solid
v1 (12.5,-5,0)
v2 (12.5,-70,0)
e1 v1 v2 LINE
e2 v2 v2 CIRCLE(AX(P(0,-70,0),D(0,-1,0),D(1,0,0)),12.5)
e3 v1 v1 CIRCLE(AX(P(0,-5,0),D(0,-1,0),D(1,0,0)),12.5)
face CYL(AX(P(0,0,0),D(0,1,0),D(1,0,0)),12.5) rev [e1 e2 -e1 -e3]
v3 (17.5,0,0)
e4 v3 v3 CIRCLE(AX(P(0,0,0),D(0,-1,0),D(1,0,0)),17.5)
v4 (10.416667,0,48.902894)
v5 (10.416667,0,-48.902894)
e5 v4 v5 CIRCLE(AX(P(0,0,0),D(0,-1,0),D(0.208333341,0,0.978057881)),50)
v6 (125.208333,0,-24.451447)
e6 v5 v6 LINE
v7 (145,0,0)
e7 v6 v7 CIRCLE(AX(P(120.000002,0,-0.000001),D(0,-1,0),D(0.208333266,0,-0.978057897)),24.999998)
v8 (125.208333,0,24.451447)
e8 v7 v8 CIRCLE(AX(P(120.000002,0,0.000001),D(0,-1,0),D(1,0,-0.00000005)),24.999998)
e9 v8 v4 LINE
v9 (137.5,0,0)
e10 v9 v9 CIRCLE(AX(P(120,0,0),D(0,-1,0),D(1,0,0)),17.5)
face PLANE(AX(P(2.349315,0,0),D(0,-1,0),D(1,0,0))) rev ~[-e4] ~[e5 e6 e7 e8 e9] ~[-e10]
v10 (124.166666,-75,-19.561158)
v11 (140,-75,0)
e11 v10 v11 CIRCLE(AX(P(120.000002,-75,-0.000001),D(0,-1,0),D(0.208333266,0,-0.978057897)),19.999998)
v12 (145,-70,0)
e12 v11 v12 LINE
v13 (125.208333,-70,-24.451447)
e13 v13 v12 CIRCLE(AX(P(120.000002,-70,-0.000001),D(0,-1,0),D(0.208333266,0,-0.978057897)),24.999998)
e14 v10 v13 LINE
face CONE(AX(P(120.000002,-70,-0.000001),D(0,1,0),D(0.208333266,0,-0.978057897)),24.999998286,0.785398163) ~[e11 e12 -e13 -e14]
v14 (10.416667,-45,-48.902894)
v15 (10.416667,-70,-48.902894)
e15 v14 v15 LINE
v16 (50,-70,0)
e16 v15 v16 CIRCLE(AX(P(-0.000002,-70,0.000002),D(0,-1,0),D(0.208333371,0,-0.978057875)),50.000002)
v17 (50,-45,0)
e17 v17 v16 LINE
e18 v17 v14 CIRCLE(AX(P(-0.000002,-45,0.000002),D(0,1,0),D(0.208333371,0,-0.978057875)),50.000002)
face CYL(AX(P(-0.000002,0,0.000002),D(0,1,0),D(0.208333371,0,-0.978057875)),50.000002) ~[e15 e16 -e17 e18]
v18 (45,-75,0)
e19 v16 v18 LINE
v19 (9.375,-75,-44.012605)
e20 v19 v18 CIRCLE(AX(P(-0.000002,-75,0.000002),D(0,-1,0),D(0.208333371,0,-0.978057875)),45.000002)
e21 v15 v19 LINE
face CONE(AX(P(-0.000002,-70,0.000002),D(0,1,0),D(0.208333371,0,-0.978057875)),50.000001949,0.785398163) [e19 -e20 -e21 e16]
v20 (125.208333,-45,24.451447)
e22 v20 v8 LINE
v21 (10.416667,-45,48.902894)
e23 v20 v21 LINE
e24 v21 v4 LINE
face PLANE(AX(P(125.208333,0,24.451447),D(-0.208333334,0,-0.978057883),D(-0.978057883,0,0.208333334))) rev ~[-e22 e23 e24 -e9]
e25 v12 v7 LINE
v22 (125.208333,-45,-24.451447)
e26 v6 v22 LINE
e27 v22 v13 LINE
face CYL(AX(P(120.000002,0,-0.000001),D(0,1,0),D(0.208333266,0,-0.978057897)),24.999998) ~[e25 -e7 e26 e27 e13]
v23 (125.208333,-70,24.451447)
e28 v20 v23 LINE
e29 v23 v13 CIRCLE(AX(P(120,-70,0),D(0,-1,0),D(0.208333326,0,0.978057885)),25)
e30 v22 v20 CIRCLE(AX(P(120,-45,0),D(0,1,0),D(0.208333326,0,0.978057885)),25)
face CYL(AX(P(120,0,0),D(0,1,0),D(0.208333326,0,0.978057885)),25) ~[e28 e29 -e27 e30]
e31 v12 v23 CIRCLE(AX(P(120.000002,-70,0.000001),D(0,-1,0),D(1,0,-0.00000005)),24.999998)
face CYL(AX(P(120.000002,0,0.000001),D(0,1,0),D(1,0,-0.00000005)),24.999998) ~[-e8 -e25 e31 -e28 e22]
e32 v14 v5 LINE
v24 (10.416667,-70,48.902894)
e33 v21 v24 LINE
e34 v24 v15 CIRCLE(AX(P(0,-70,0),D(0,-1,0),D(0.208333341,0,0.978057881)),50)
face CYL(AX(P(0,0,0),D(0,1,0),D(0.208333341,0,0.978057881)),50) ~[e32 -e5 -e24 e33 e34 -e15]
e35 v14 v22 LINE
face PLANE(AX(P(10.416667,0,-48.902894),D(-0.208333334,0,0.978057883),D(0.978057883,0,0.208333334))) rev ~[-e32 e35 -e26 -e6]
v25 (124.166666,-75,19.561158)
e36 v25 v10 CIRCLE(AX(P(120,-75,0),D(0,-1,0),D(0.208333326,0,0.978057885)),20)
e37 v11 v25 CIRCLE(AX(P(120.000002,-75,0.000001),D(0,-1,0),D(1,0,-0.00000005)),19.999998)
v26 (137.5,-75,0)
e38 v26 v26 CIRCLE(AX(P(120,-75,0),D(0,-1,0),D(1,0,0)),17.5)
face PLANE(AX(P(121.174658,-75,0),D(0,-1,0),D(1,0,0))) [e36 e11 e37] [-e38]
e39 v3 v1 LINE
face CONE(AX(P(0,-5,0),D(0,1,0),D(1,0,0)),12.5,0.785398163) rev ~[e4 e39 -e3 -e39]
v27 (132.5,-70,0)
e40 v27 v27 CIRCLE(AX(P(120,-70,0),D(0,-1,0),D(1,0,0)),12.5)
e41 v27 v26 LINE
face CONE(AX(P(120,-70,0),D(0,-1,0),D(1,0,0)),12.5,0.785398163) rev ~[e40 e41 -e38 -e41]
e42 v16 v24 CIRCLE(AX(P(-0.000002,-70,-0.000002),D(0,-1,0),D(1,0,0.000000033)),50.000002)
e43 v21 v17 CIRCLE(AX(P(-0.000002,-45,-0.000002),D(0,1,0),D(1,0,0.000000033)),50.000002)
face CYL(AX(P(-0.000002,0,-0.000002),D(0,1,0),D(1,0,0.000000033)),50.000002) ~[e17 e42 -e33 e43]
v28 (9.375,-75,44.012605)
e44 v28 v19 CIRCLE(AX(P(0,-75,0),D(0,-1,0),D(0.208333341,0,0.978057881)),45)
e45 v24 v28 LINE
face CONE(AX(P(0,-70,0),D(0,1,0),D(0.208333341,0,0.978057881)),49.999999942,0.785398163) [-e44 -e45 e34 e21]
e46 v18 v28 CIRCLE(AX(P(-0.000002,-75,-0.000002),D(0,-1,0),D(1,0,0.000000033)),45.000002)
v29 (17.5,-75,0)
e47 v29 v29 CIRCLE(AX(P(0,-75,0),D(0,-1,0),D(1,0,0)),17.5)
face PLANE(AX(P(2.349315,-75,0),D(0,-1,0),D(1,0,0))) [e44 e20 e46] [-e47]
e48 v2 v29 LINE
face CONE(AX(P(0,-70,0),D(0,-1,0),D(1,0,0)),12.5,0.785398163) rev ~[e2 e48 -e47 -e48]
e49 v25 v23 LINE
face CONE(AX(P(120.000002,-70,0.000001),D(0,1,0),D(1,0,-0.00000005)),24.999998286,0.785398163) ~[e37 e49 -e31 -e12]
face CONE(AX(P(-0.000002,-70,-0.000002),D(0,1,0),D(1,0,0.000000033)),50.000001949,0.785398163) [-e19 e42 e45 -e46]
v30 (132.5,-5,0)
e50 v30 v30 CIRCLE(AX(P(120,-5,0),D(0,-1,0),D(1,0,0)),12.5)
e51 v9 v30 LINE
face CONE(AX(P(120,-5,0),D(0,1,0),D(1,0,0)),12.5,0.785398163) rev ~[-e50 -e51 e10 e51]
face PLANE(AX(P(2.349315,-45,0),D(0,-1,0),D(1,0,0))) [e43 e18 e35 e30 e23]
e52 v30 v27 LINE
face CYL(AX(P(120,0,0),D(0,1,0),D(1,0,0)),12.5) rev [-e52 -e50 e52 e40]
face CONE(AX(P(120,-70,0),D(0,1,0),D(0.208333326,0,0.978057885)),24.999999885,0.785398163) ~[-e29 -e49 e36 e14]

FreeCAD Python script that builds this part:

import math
import FreeCAD as App
import Part
import Sketcher
from FreeCAD import Vector
Q = App.Units.Quantity


def edges_at(feature, points):
    """Names of the edges that pass closest to the given points."""
    edges = feature.Shape.Edges
    near = lambda p: min(range(len(edges)), key=lambda i: edges[i].distToShape(Part.Vertex(*p))[0])
    return sorted({f"Edge{near(p) + 1}" for p in points})

doc = App.newDocument("Part")
body = doc.addObject("PartDesign::Body", "Body")

# Sketch on XZ plane
sketch1 = body.newObject("Sketcher::SketchObject", "Sketch")
sketch1.AttachmentSupport = (doc.getObject("XZ_Plane"), [""])
sketch1.MapMode = "FlatFace"
sketch1.addGeometry(Part.ArcOfCircle(Part.Circle(Vector(0, 0, 0), Vector(0, 0, 1), 50), math.radians(77.9753), math.radians(282.0247)), False)
sketch1.addGeometry(Part.LineSegment(Vector(10.416667, -48.902894, 0), Vector(125.208333, -24.451447, 0)), False)
sketch1.addGeometry(Part.ArcOfCircle(Part.Circle(Vector(120.000002, -0.000001, 0), Vector(0, 0, 1), 24.999998), math.radians(-77.975305), math.radians(0.000003)), False)
sketch1.addGeometry(Part.ArcOfCircle(Part.Circle(Vector(120.000002, 0.000001, 0), Vector(0, 0, 1), 24.999998), math.radians(-0.000003), math.radians(77.975305)), False)
sketch1.addGeometry(Part.LineSegment(Vector(125.208333, 24.451447, 0), Vector(10.416667, 48.902894, 0)), False)
sketch1.addGeometry(Part.Circle(Vector(0, 0, 0), Vector(0, 0, 1), 12.5), False)
sketch1.addGeometry(Part.Circle(Vector(120, 0, 0), Vector(0, 0, 1), 12.5), False)
sketch1.addConstraint(Sketcher.Constraint("Tangent", 0, 2, 1, 1))
sketch1.addConstraint(Sketcher.Constraint("Tangent", 1, 2, 2, 1))
sketch1.addConstraint(Sketcher.Constraint("Tangent", 2, 2, 3, 1))
sketch1.addConstraint(Sketcher.Constraint("Tangent", 3, 2, 4, 1))
sketch1.addConstraint(Sketcher.Constraint("Tangent", 4, 2, 0, 1))
sketch1.addConstraint(Sketcher.Constraint("Coincident", 0, 3, -1, 1))
sketch1.addConstraint(Sketcher.Constraint("Coincident", 5, 3, -1, 1))
sketch1.addConstraint(Sketcher.Constraint("Coincident", 6, 3, 2, 3))
sketch1.addConstraint(Sketcher.Constraint("Equal", 2, 3))
sketch1.addConstraint(Sketcher.Constraint("Equal", 5, 6))
sketch1.addConstraint(Sketcher.Constraint("PointOnObject", 2, 3, -1))
sketch1.addConstraint(Sketcher.Constraint("PointOnObject", 2, 2, -1))
sketch1.addConstraint(Sketcher.Constraint("Diameter", 5, Q("25 mm")))
sketch1.addConstraint(Sketcher.Constraint("Radius", 0, Q("50 mm")))
sketch1.addConstraint(Sketcher.Constraint("Radius", 2, Q("24.999998 mm")))
sketch1.addConstraint(Sketcher.Constraint("DistanceX", -1, 1, 2, 3, Q("120.000002 mm")))
pad1 = body.newObject("PartDesign::Pad", "Pad")
pad1.Profile = sketch1
pad1.Length = 45

# Sketch on XZ plane
sketch2 = body.newObject("Sketcher::SketchObject", "Sketch001")
sketch2.AttachmentSupport = (doc.getObject("XZ_Plane"), [""])
sketch2.MapMode = "FlatFace"
sketch2.addGeometry(Part.ArcOfCircle(Part.Circle(Vector(-0.000002, 0.000002, 0), Vector(0, 0, 1), 50.000002), math.radians(-77.975299), math.radians(-0.000002)), False)
sketch2.addGeometry(Part.ArcOfCircle(Part.Circle(Vector(-0.000002, -0.000002, 0), Vector(0, 0, 1), 50.000002), math.radians(0.000002), math.radians(77.975299)), False)
sketch2.addGeometry(Part.ArcOfCircle(Part.Circle(Vector(0, 0, 0), Vector(0, 0, 1), 50), math.radians(77.9753), math.radians(282.0247)), False)
sketch2.addGeometry(Part.Circle(Vector(0, 0, 0), Vector(0, 0, 1), 12.5), False)
sketch2.addGeometry(Part.ArcOfCircle(Part.Circle(Vector(120.000002, 0.000001, 0), Vector(0, 0, 1), 24.999998), math.radians(-0.000003), math.radians(77.975305)), False)
sketch2.addGeometry(Part.ArcOfCircle(Part.Circle(Vector(120, 0, 0), Vector(0, 0, 1), 25), math.radians(77.975301), math.radians(282.024699)), False)
sketch2.addGeometry(Part.ArcOfCircle(Part.Circle(Vector(120.000002, -0.000001, 0), Vector(0, 0, 1), 24.999998), math.radians(-77.975305), math.radians(0.000003)), False)
sketch2.addGeometry(Part.Circle(Vector(120, 0, 0), Vector(0, 0, 1), 12.5), False)
sketch2.addConstraint(Sketcher.Constraint("Tangent", 0, 2, 1, 1))
sketch2.addConstraint(Sketcher.Constraint("Tangent", 1, 2, 2, 1))
sketch2.addConstraint(Sketcher.Constraint("Tangent", 2, 2, 0, 1))
sketch2.addConstraint(Sketcher.Constraint("Tangent", 4, 2, 5, 1))
sketch2.addConstraint(Sketcher.Constraint("Tangent", 5, 2, 6, 1))
sketch2.addConstraint(Sketcher.Constraint("Tangent", 6, 2, 4, 1))
sketch2.addConstraint(Sketcher.Constraint("Coincident", 0, 3, -1, 1))
sketch2.addConstraint(Sketcher.Constraint("Coincident", 3, 3, -1, 1))
sketch2.addConstraint(Sketcher.Constraint("Coincident", 7, 3, 4, 3))
sketch2.addConstraint(Sketcher.Constraint("Equal", 3, 7))
sketch2.addConstraint(Sketcher.Constraint("Symmetric", 4, 2, 5, 2, -1))
sketch2.addConstraint(Sketcher.Constraint("PointOnObject", 0, 2, -1))
sketch2.addConstraint(Sketcher.Constraint("PointOnObject", 6, 2, -1))
sketch2.addConstraint(Sketcher.Constraint("Vertical", 1, 2, 2, 2))
sketch2.addConstraint(Sketcher.Constraint("Diameter", 3, Q("25 mm")))
sketch2.addConstraint(Sketcher.Constraint("Radius", 0, Q("50.000002 mm")))
sketch2.addConstraint(Sketcher.Constraint("Radius", 4, Q("24.999998 mm")))
sketch2.addConstraint(Sketcher.Constraint("DistanceX", -1, 1, 4, 3, Q("120.000002 mm")))
sketch2.addConstraint(Sketcher.Constraint("DistanceX", 0, 3, 1, 2, Q("10.416669 mm")))
sketch2.addConstraint(Sketcher.Constraint("DistanceX", 4, 3, 4, 2, Q("5.208331 mm")))
pad2 = body.newObject("PartDesign::Pad", "Pad001")
pad2.Profile = sketch2
pad2.Length = 75
doc.recompute()

chamfer = body.newObject("PartDesign::Chamfer", "Chamfer")
chamfer.Base = (pad2, edges_at(pad2, [
    (-50, -75, 0),
    (-12.5, -75, 0),
    (95, -75, 0),
    (107.5, -75, 0),
]))
chamfer.Size = 5
doc.recompute()

chamfer2 = body.newObject("PartDesign::Chamfer", "Chamfer001")
chamfer2.Base = (chamfer, edges_at(chamfer, [(107.5, 0, 0), (-12.5, 0, 0)]))
chamfer2.Size = 5

# Sketch on XZ plane
sketch3 = body.newObject("Sketcher::SketchObject", "Sketch002")
sketch3.AttachmentSupport = (doc.getObject("XZ_Plane"), [""])
sketch3.MapMode = "FlatFace"
sketch3.addGeometry(Part.ArcOfCircle(Part.Circle(Vector(-0.000002, -0.000002, 0), Vector(0, 0, 1), 50.000002), math.radians(0.000002), math.radians(77.975299)), False)
sketch3.addGeometry(Part.ArcOfCircle(Part.Circle(Vector(-0.000002, 0.000002, 0), Vector(0, 0, 1), 50.000002), math.radians(-77.975299), math.radians(-0.000002)), False)
sketch3.addGeometry(Part.LineSegment(Vector(10.416667, -48.902894, 0), Vector(125.208333, -24.451447, 0)), False)
sketch3.addGeometry(Part.ArcOfCircle(Part.Circle(Vector(120, 0, 0), Vector(0, 0, 1), 25), math.radians(77.975301), math.radians(282.024699)), False)
sketch3.addGeometry(Part.LineSegment(Vector(125.208333, 24.451447, 0), Vector(10.416667, 48.902894, 0)), False)
sketch3.addConstraint(Sketcher.Constraint("Tangent", 0, 1, 1, 2))
sketch3.addConstraint(Sketcher.Constraint("Tangent", 1, 1, 2, 1))
sketch3.addConstraint(Sketcher.Constraint("Tangent", 2, 2, 3, 2))
sketch3.addConstraint(Sketcher.Constraint("Tangent", 3, 1, 4, 1))
sketch3.addConstraint(Sketcher.Constraint("Tangent", 4, 2, 0, 2))
sketch3.addConstraint(Sketcher.Constraint("Coincident", 0, 3, -1, 1))
sketch3.addConstraint(Sketcher.Constraint("Equal", 0, 1))
sketch3.addConstraint(Sketcher.Constraint("PointOnObject", 3, 3, -1))
sketch3.addConstraint(Sketcher.Constraint("PointOnObject", 0, 1, -1))
sketch3.addConstraint(Sketcher.Constraint("Radius", 0, Q("50.000002 mm")))
sketch3.addConstraint(Sketcher.Constraint("Radius", 3, Q("25 mm")))
sketch3.addConstraint(Sketcher.Constraint("DistanceX", -1, 1, 3, 3, Q("120 mm")))
pad3 = body.newObject("PartDesign::Pad", "Pad002")
pad3.Profile = sketch3
pad3.Length = 15

doc.recompute()
